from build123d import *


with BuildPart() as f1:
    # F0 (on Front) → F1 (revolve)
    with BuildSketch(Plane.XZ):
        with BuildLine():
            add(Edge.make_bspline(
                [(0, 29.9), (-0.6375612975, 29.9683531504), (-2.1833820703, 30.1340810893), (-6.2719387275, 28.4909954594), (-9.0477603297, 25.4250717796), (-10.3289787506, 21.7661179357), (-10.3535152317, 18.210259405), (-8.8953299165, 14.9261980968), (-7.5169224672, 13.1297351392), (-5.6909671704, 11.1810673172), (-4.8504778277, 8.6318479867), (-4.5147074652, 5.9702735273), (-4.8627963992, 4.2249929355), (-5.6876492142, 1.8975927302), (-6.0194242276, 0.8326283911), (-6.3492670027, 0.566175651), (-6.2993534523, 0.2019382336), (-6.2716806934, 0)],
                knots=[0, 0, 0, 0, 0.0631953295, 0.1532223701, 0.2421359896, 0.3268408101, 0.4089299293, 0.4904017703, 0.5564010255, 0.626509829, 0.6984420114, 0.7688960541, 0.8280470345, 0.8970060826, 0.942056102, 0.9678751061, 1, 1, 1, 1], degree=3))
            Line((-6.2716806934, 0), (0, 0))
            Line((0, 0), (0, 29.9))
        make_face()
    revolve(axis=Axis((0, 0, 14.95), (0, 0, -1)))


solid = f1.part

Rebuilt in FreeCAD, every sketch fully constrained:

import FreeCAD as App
import Part
import Sketcher
from FreeCAD import Vector

doc = App.newDocument("Part")
body = doc.addObject("PartDesign::Body", "Body")

sketch1 = doc.addObject("Sketcher::SketchObject", "Sketch")
body.addObject(sketch1)
sketch1.AttachmentSupport = (doc.XZ_Plane, [""])
sketch1.MapMode = "FlatFace"
sketch1.addGeometry([
    Part.BSplineCurve([Vector(0, 29.9, 0), Vector(-0.637561, 29.968353, 0), Vector(-2.183382, 30.134081, 0), Vector(-6.271939, 28.490995, 0), Vector(-9.04776, 25.425072, 0), Vector(-10.328979, 21.766118, 0), Vector(-10.353515, 18.210259, 0), Vector(-8.89533, 14.926198, 0), Vector(-7.516922, 13.129735, 0), Vector(-5.690967, 11.181067, 0), Vector(-4.850478, 8.631848, 0), Vector(-4.514707, 5.970274, 0), Vector(-4.862796, 4.224993, 0), Vector(-5.687649, 1.897593, 0), Vector(-6.019424, 0.832628, 0), Vector(-6.349267, 0.566176, 0), Vector(-6.299353, 0.201938, 0), Vector(-6.271681, 0, 0)], [4, 1, 1, 1, 1, 1, 1, 1, 1, 1, 1, 1, 1, 1, 1, 4], [0, 0.063195329, 0.15322237, 0.24213599, 0.32684081, 0.408929929, 0.49040177, 0.556401026, 0.626509829, 0.698442011, 0.768896054, 0.828047034, 0.897006083, 0.942056102, 0.967875106, 1], False, 3, [1, 1, 1, 1, 1, 1, 1, 1, 1, 1, 1, 1, 1, 1, 1, 1, 1, 1], False),
    Part.LineSegment(Vector(-6.271681, 0, 0), Vector(0, 0, 0)),
    Part.LineSegment(Vector(0, 0, 0), Vector(0, 29.9, 0)),
], False)
sketch1.addConstraint([
    Sketcher.Constraint("Block", 0),
    Sketcher.Constraint("Coincident", 0, 2, 1, 1),
    Sketcher.Constraint("Coincident", 1, 2, 2, 1),
    Sketcher.Constraint("Coincident", 2, 2, 0, 1),
    Sketcher.Constraint("Horizontal", 1),
    Sketcher.Constraint("Vertical", 2),
])
revolution = doc.addObject("PartDesign::Revolution", "Revolution")
body.addObject(revolution)
revolution.Profile = sketch1
revolution.ReferenceAxis = (sketch1, ["V_Axis"])
revolution.Angle = 360

doc.recompute()
